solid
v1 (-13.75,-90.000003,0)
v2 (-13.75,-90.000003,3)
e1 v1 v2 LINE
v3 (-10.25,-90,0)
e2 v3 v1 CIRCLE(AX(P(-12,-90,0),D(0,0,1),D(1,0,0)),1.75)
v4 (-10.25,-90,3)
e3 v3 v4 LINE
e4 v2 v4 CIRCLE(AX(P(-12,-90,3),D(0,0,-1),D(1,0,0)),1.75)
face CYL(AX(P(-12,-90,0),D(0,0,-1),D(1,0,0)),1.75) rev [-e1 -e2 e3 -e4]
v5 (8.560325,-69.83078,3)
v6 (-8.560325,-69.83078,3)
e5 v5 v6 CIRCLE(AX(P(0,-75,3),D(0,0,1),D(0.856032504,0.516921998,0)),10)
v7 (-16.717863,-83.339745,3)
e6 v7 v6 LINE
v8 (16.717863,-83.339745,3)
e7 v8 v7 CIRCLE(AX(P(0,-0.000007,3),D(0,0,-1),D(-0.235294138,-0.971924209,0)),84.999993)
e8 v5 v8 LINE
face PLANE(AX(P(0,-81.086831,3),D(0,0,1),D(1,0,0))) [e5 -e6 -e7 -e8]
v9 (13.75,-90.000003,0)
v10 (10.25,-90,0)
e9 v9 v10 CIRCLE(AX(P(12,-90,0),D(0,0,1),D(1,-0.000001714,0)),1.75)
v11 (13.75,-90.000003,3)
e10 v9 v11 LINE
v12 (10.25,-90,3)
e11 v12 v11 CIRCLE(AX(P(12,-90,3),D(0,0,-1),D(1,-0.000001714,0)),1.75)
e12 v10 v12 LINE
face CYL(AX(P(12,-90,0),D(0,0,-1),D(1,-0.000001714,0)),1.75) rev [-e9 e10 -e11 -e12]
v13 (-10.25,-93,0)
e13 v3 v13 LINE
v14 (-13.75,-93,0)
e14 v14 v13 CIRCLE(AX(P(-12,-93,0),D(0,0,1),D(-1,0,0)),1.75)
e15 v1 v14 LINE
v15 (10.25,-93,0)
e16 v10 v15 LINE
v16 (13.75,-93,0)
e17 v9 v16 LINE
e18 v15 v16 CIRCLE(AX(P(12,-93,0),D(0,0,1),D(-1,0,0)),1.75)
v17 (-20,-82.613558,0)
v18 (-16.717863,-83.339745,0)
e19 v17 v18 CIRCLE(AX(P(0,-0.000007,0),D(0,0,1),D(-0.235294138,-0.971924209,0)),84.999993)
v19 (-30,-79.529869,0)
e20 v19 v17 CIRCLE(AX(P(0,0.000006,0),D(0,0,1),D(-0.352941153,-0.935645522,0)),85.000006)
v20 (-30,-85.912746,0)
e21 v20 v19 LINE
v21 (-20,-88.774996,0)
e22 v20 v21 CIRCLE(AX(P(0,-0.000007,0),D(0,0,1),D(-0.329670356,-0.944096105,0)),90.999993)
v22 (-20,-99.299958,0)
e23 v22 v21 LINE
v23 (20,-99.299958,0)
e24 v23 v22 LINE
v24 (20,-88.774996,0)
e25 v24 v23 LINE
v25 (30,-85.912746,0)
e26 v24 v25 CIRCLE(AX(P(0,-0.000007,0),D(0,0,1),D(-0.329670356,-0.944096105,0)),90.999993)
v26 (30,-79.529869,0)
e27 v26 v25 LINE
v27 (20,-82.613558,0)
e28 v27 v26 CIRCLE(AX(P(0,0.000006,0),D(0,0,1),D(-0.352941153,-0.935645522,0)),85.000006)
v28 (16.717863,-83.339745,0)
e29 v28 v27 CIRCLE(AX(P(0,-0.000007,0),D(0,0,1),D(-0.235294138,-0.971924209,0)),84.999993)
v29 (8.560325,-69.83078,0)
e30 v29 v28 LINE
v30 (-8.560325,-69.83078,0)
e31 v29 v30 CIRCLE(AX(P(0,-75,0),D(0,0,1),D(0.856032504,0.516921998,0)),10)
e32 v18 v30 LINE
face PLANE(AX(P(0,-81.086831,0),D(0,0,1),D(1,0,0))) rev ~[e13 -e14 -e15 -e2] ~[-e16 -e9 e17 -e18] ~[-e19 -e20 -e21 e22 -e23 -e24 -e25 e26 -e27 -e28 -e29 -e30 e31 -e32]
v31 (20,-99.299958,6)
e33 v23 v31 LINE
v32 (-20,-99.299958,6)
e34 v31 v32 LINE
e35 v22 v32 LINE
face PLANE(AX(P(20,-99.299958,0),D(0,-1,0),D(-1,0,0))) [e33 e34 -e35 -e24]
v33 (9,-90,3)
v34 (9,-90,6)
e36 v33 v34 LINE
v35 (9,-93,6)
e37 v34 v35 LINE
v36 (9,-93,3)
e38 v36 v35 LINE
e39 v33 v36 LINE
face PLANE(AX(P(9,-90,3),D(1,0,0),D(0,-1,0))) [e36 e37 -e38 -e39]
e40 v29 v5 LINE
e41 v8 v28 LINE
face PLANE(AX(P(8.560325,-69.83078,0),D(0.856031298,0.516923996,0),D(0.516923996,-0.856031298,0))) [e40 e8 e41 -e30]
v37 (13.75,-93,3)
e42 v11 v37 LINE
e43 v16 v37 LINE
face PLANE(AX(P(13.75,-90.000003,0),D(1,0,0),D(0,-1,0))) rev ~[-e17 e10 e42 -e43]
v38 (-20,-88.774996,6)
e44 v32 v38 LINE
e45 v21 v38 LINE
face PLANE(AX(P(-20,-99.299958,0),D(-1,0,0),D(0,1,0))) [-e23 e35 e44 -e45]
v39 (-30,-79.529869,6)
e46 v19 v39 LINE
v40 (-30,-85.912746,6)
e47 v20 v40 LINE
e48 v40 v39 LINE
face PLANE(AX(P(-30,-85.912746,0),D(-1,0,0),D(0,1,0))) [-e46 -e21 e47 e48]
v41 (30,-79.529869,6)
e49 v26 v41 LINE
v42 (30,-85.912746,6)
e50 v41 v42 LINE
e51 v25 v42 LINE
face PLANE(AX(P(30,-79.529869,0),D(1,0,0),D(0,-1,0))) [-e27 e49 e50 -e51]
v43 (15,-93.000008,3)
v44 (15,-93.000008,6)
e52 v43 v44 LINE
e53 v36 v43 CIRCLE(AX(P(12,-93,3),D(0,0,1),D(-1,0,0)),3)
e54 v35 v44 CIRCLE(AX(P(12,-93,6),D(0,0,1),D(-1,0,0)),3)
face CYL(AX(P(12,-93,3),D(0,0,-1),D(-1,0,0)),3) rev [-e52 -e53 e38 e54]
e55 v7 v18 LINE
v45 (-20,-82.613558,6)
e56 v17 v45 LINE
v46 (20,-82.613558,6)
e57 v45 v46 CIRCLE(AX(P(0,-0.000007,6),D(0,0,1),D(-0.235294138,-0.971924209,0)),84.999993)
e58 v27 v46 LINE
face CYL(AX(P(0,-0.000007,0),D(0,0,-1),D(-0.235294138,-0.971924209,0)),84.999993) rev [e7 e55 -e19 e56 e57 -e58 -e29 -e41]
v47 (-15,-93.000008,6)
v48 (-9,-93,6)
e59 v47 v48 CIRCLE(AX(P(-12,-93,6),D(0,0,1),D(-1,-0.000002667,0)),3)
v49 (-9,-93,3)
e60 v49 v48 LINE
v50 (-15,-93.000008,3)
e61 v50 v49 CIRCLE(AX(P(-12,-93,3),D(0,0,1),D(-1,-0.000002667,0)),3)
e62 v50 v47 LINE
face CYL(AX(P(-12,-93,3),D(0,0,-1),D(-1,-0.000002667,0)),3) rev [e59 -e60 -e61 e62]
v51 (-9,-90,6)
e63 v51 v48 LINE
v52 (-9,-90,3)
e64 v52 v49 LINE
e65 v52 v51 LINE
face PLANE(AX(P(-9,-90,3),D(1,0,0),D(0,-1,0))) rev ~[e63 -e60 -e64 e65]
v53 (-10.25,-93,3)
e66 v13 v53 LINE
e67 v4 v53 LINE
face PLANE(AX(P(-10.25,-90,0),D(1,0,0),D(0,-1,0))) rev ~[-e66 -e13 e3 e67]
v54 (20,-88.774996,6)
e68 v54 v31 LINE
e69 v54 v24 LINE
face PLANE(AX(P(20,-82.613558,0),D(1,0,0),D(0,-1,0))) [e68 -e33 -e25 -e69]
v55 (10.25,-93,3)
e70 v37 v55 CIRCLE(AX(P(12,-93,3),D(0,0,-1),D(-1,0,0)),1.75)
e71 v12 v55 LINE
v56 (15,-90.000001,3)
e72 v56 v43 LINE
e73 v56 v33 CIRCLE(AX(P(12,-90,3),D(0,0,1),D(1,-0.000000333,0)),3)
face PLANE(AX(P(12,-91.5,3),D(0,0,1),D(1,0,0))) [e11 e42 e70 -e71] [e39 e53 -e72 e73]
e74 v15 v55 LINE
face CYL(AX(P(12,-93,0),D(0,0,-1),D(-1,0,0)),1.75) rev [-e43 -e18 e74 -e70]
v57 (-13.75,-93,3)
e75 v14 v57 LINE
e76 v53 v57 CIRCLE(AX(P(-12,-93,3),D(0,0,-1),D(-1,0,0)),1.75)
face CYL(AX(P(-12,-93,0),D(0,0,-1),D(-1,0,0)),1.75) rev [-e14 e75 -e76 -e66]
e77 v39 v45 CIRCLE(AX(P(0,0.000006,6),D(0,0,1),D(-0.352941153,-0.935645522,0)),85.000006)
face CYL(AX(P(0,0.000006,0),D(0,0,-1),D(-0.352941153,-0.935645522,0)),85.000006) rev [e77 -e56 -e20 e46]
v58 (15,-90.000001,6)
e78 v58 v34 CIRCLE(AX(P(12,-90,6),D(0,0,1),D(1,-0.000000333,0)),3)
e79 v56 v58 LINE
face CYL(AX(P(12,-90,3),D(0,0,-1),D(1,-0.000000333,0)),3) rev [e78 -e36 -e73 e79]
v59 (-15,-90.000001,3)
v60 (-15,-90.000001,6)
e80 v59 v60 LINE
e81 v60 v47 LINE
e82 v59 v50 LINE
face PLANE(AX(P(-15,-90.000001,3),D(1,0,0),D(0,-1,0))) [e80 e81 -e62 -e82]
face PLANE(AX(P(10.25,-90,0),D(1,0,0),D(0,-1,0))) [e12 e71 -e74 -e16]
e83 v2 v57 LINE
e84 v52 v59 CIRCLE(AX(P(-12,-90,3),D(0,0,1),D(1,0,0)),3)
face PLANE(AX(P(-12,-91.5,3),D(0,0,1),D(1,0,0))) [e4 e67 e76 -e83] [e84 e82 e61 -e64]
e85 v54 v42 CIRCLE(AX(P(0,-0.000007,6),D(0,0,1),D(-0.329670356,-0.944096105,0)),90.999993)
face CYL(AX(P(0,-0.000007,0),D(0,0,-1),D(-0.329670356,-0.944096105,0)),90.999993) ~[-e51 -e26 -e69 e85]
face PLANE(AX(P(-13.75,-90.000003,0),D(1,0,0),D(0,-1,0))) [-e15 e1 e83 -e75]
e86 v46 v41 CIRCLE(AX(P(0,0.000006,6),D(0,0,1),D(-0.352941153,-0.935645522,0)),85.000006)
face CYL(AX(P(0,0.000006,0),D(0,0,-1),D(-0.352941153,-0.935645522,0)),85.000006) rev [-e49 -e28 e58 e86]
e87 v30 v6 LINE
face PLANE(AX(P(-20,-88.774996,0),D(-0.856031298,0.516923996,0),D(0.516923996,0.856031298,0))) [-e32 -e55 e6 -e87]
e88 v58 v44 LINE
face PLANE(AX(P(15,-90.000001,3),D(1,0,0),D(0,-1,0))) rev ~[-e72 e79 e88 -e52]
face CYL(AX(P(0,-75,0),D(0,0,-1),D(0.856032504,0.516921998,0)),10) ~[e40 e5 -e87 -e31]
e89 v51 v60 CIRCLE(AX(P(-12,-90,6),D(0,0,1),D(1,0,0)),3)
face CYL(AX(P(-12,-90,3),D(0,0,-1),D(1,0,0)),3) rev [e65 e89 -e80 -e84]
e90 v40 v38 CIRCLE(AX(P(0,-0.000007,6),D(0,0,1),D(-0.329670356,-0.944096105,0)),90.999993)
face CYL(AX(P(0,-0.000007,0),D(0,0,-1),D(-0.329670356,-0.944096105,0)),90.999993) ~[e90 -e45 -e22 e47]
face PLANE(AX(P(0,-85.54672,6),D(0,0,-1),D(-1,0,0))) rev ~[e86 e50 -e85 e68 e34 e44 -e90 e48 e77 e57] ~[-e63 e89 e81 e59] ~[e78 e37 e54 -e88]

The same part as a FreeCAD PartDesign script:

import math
import FreeCAD as App
import Part
import Sketcher

doc = App.newDocument("Part")
body = doc.addObject("PartDesign::Body", "Body")
body.AllowCompound = True

# Sketch on XY plane
sketch1 = doc.addObject("Sketcher::SketchObject", "Sketch")
body.addObject(sketch1)
sketch1.AttachmentSupport = (doc.XY_Plane, [""])
sketch1.MapMode = "FlatFace"
sketch1.AttachmentOffset = App.Placement(App.Vector(0, 0, 3), App.Rotation())
sketch1.addGeometry([
    Part.ArcOfCircle(Part.Circle(App.Vector(-12, -93, 0), App.Vector(0, 0, 1), 3), math.radians(-179.999847), math.radians(0)),  # 0
    Part.LineSegment(App.Vector(-9, -93, 0), App.Vector(-9, -90, 0)),  # 1
    Part.ArcOfCircle(Part.Circle(App.Vector(-12, -90, 0), App.Vector(0, 0, 1), 3), math.radians(0), math.radians(180.000019)),  # 2
    Part.LineSegment(App.Vector(-15, -90.000001, 0), App.Vector(-15, -93.000008, 0)),  # 3
    Part.ArcOfCircle(Part.Circle(App.Vector(12, -90, 0), App.Vector(0, 0, 1), 3), math.radians(-0.000019), math.radians(180)),  # 4
    Part.LineSegment(App.Vector(9, -90, 0), App.Vector(9, -93, 0)),  # 5
    Part.ArcOfCircle(Part.Circle(App.Vector(12, -93, 0), App.Vector(0, 0, 1), 3), math.radians(180), math.radians(359.999847)),  # 6
    Part.LineSegment(App.Vector(15, -93.000008, 0), App.Vector(15, -90.000001, 0)),  # 7
], False)
sketch1.addConstraint([
    Sketcher.Constraint("Tangent", 0, 2, 1, 1),
    Sketcher.Constraint("Tangent", 1, 2, 2, 1),
    Sketcher.Constraint("Tangent", 2, 2, 3, 1),
    Sketcher.Constraint("Coincident", 3, 2, 0, 1),
    Sketcher.Constraint("Tangent", 4, 2, 5, 1),
    Sketcher.Constraint("Tangent", 5, 2, 6, 1),
    Sketcher.Constraint("Coincident", 6, 2, 7, 1),
    Sketcher.Constraint("Tangent", 7, 2, 4, 1),
    Sketcher.Constraint("Vertical", 1),
    Sketcher.Constraint("Vertical", 3),
    Sketcher.Constraint("Vertical", 5),
    Sketcher.Constraint("Vertical", 7),
    Sketcher.Constraint("Equal", 2, 4),
    Sketcher.Constraint("Symmetric", 2, 3, 4, 3, -2),
    Sketcher.Constraint("Horizontal", 0, 3, 6, 3),
    Sketcher.Constraint("Horizontal", 3, 2, 6, 2),
    Sketcher.Constraint("Radius", 0, 3.0),
    Sketcher.Constraint("DistanceY", 1, 1, 1, 2, 3.0),
    Sketcher.Constraint("DistanceX", 0, 3, -1, 1, 12.0),
    Sketcher.Constraint("DistanceY", 0, 3, -1, 1, 93.0),
    Sketcher.Constraint("DistanceY", 3, 2, 3, 1, 3.000007),
])
pad1 = doc.addObject("PartDesign::Pad", "Pad")
body.addObject(pad1)
pad1.Profile = sketch1
pad1.Length = 3
body2 = doc.addObject("PartDesign::Body", "Body001")
body2.AllowCompound = True

# Sketch on XY plane
sketch2 = doc.addObject("Sketcher::SketchObject", "Sketch001")
body2.addObject(sketch2)
sketch2.AttachmentSupport = (doc.getObject("XY_Plane001"), [""])
sketch2.MapMode = "FlatFace"
sketch2.addGeometry([
    Part.ArcOfCircle(Part.Circle(App.Vector(-12, -90, 0), App.Vector(0, 0, 1), 1.75), math.radians(0), math.radians(180.000098)),  # 0
    Part.LineSegment(App.Vector(-13.75, -90.000003, 0), App.Vector(-13.75, -93, 0)),  # 1
    Part.ArcOfCircle(Part.Circle(App.Vector(-12, -93, 0), App.Vector(0, 0, 1), 1.75), math.radians(180), math.radians(360)),  # 2
    Part.LineSegment(App.Vector(-10.25, -93, 0), App.Vector(-10.25, -90, 0)),  # 3
    Part.ArcOfCircle(Part.Circle(App.Vector(12, -90, 0), App.Vector(0, 0, 1), 1.75), math.radians(-0.000098), math.radians(180)),  # 4
    Part.LineSegment(App.Vector(10.25, -90, 0), App.Vector(10.25, -93, 0)),  # 5
    Part.ArcOfCircle(Part.Circle(App.Vector(12, -93, 0), App.Vector(0, 0, 1), 1.75), math.radians(180), math.radians(360)),  # 6
    Part.LineSegment(App.Vector(13.75, -93, 0), App.Vector(13.75, -90.000003, 0)),  # 7
], False)
sketch2.addConstraint([
    Sketcher.Constraint("Tangent", 0, 2, 1, 1),
    Sketcher.Constraint("Tangent", 1, 2, 2, 1),
    Sketcher.Constraint("Tangent", 2, 2, 3, 1),
    Sketcher.Constraint("Tangent", 3, 2, 0, 1),
    Sketcher.Constraint("Tangent", 4, 2, 5, 1),
    Sketcher.Constraint("Tangent", 5, 2, 6, 1),
    Sketcher.Constraint("Tangent", 6, 2, 7, 1),
    Sketcher.Constraint("Tangent", 7, 2, 4, 1),
    Sketcher.Constraint("Vertical", 1),
    Sketcher.Constraint("Vertical", 3),
    Sketcher.Constraint("Vertical", 5),
    Sketcher.Constraint("Vertical", 7),
    Sketcher.Constraint("Equal", 2, 4),
    Sketcher.Constraint("Symmetric", 0, 3, 4, 3, -2),
    Sketcher.Constraint("Horizontal", 2, 3, 6, 3),
    Sketcher.Constraint("DistanceY", 3, 1, 3, 2, 3.0),
    Sketcher.Constraint("Radius", 0, 1.75),
    Sketcher.Constraint("DistanceX", 0, 3, -1, 1, 12.0),
    Sketcher.Constraint("DistanceY", 0, 3, -1, 1, 90.0),
])
pad2 = doc.addObject("PartDesign::Pad", "Pad001")
body2.addObject(pad2)
pad2.Profile = sketch2
pad2.Length = 6
body3 = doc.addObject("PartDesign::Body", "Body002")

# Sketch on XY plane
sketch3 = doc.addObject("Sketcher::SketchObject", "Sketch002")
body3.addObject(sketch3)
sketch3.AttachmentSupport = (doc.getObject("XY_Plane002"), [""])
sketch3.MapMode = "FlatFace"
sketch3.addGeometry([
    Part.ArcOfCircle(Part.Circle(App.Vector(0, 0.000006, 0), App.Vector(0, 0, 1), 85.000006), math.radians(-110.667315), math.radians(-69.332685)),
    Part.LineSegment(App.Vector(-30, -79.529869, 0), App.Vector(-30, -85.912746, 0)),
    Part.ArcOfCircle(Part.Circle(App.Vector(0, -0.000007, 0), App.Vector(0, 0, 1), 90.999993), math.radians(-109.248769), math.radians(-70.751231)),
    Part.LineSegment(App.Vector(30, -85.912746, 0), App.Vector(30, -79.529869, 0)),
], False)
sketch3.addConstraint([
    Sketcher.Constraint("Coincident", 0, 1, 1, 1),
    Sketcher.Constraint("Coincident", 1, 2, 2, 1),
    Sketcher.Constraint("Coincident", 2, 2, 3, 1),
    Sketcher.Constraint("Coincident", 3, 2, 0, 2),
    Sketcher.Constraint("Vertical", 1),
    Sketcher.Constraint("Vertical", 3),
    Sketcher.Constraint("Coincident", 0, 3, -1, 1),
    Sketcher.Constraint("Coincident", 2, 3, -1, 1),
    Sketcher.Constraint("Horizontal", 1, 2, 2, 2),
    Sketcher.Constraint("DistanceX", 0, 1, -1, 1, 30.0),
    Sketcher.Constraint("Radius", 0, 85.000006),
    Sketcher.Constraint("Radius", 2, 90.999993),
])
pad3 = doc.addObject("PartDesign::Pad", "Pad002")
body3.addObject(pad3)
pad3.Profile = sketch3
pad3.Length = 6
body4 = doc.addObject("PartDesign::Body", "Body003")

# Sketch on XY plane
sketch4 = doc.addObject("Sketcher::SketchObject", "Sketch003")
body4.addObject(sketch4)
sketch4.AttachmentSupport = (doc.getObject("XY_Plane003"), [""])
sketch4.MapMode = "FlatFace"
sketch4.addGeometry([
    Part.ArcOfCircle(Part.Circle(App.Vector(0, -75, 0), App.Vector(0, 0, 1), 10), math.radians(31.126011), math.radians(148.873989)),
    Part.LineSegment(App.Vector(-8.560325, -69.83078, 0), App.Vector(-20, -88.774996, 0)),
    Part.ArcOfCircle(Part.Circle(App.Vector(0, -0.000019, 0), App.Vector(0, 0, 1), 90.999981), math.radians(-102.696127), math.radians(-77.303873)),
    Part.LineSegment(App.Vector(20, -88.774996, 0), App.Vector(8.560325, -69.83078, 0)),
], False)
sketch4.addConstraint([
    Sketcher.Constraint("Coincident", 0, 2, 1, 1),
    Sketcher.Constraint("Coincident", 1, 2, 2, 1),
    Sketcher.Constraint("Coincident", 2, 2, 3, 1),
    Sketcher.Constraint("Coincident", 3, 2, 0, 1),
    Sketcher.Constraint("Symmetric", 1, 2, 2, 2, -2),
    Sketcher.Constraint("Symmetric", 0, 2, 3, 2, -2),
    Sketcher.Constraint("Radius", 0, 10.0),
    Sketcher.Constraint("DistanceY", 0, 3, -1, 1, 75.0),
    Sketcher.Constraint("DistanceX", 1, 2, -1, 1, 20.0),
    Sketcher.Constraint("Radius", 2, 90.999981),
    Sketcher.Constraint("DistanceY", 0, 2, -1, 1, 69.83078),
    Sketcher.Constraint("DistanceY", 0, 3, 2, 3, 74.999981),
])
pad4 = doc.addObject("PartDesign::Pad", "Pad003")
body4.addObject(pad4)
pad4.Profile = sketch4
pad4.Length = 3
body5 = doc.addObject("PartDesign::Body", "Body004")

# Sketch on XY plane
sketch5 = doc.addObject("Sketcher::SketchObject", "Sketch004")
body5.addObject(sketch5)
sketch5.AttachmentSupport = (doc.getObject("XY_Plane004"), [""])
sketch5.MapMode = "FlatFace"
sketch5.addGeometry([
    Part.ArcOfCircle(Part.Circle(App.Vector(0, -0.000007, 0), App.Vector(0, 0, 1), 84.999993), math.radians(-103.608962), math.radians(-76.391038)),
    Part.LineSegment(App.Vector(-20, -82.613558, 0), App.Vector(-20, -99.299958, 0)),
    Part.LineSegment(App.Vector(-20, -99.299958, 0), App.Vector(20, -99.299958, 0)),
    Part.LineSegment(App.Vector(20, -99.299958, 0), App.Vector(20, -82.613558, 0)),
], False)
sketch5.addConstraint([
    Sketcher.Constraint("Coincident", 0, 1, 1, 1),
    Sketcher.Constraint("Coincident", 1, 2, 2, 1),
    Sketcher.Constraint("Coincident", 2, 2, 3, 1),
    Sketcher.Constraint("Coincident", 3, 2, 0, 2),
    Sketcher.Constraint("Vertical", 1),
    Sketcher.Constraint("Horizontal", 2),
    Sketcher.Constraint("Vertical", 3),
    Sketcher.Constraint("Coincident", 0, 3, -1, 1),
    Sketcher.Constraint("Horizontal", 0, 1, 3, 2),
    Sketcher.Constraint("DistanceX", 2, 1, 2, 2, 40.0),
    Sketcher.Constraint("DistanceY", 1, 2, 1, 1, 16.6864),
    Sketcher.Constraint("Radius", 0, 84.999993),
])
pad5 = doc.addObject("PartDesign::Pad", "Pad004")
body5.addObject(pad5)
pad5.Profile = sketch5
pad5.Length = 6
doc.recompute()

boolean = doc.addObject("PartDesign::Boolean", "Boolean")
body5.addObject(boolean)
boolean.Type = "Fuse"
boolean.addObjects([body3])
doc.recompute()

boolean2 = doc.addObject("PartDesign::Boolean", "Boolean001")
body5.addObject(boolean2)
boolean2.Type = "Fuse"
boolean2.addObjects([body4])
doc.recompute()

boolean3 = doc.addObject("PartDesign::Boolean", "Boolean002")
body5.addObject(boolean3)
boolean3.Type = "Cut"
boolean3.addObjects([body2])
doc.recompute()

boolean4 = doc.addObject("PartDesign::Boolean", "Boolean003")
body5.addObject(boolean4)
boolean4.Type = "Cut"
boolean4.addObjects([body])

doc.recompute()
